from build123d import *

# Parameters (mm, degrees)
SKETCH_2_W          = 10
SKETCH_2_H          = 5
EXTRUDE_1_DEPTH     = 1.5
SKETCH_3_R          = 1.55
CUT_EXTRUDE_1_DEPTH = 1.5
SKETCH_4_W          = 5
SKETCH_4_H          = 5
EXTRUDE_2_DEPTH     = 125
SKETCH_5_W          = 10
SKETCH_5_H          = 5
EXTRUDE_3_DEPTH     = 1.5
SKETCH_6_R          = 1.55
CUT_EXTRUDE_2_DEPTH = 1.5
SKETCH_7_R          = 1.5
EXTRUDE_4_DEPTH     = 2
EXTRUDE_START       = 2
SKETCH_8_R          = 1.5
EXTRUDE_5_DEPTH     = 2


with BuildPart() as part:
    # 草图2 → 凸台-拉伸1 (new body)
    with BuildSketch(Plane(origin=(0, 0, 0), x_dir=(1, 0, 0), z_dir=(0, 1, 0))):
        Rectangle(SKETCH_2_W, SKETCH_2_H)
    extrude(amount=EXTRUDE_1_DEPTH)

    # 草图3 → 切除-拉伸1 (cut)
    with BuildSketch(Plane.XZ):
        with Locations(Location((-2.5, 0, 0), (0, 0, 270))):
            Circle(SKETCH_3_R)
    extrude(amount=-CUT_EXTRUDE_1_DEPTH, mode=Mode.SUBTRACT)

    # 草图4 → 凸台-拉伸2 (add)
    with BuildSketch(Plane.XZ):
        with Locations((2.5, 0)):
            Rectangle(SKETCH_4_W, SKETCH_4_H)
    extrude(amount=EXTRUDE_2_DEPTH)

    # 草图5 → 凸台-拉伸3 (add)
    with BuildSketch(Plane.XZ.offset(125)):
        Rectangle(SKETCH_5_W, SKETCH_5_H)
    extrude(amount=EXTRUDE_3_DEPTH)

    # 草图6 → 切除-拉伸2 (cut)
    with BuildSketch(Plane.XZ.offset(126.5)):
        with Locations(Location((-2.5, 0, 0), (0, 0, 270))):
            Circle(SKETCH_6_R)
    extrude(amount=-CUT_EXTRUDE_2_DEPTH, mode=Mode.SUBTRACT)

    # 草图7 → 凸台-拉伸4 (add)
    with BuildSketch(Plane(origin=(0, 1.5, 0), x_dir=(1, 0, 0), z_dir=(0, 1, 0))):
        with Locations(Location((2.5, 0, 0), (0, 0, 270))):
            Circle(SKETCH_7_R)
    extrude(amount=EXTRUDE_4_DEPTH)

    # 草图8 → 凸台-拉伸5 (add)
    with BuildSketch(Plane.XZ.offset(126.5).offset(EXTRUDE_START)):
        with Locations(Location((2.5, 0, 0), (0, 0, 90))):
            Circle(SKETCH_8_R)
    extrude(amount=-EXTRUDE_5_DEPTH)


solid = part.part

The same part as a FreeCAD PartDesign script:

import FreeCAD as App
import Part
import Sketcher
from FreeCAD import Vector


def add_polygon(sketch, points):
    """Adds a closed chain of lines whose ends are joined by coincident constraints."""
    first, n = sketch.GeometryCount, len(points)
    for a, b in zip(points, points[1:] + points[:1]):
        sketch.addGeometry(Part.LineSegment(App.Vector(*a, 0), App.Vector(*b, 0)), False)
    for i in range(n):
        sketch.addConstraint(Sketcher.Constraint("Coincident", first + i, 2, first + (i + 1) % n, 1))

doc = App.newDocument("Part")
params = doc.addObject("Spreadsheet::Sheet", "Params")
for row, (alias, value) in enumerate([
    ("sketch1_width", "10 mm"),
    ("sketch1_height", "5 mm"),
    ("pad1_length", "1.5 mm"),
    ("sketch2_diameter", "3.1 mm"),
    ("pocket1_length", "1.5 mm"),
    ("sketch3_width", "5 mm"),
    ("pad2_length", "125 mm"),
    ("sketch4_width", "10 mm"),
    ("sketch4_height", "5 mm"),
    ("pad3_length", "1.5 mm"),
    ("sketch5_diameter", "3.1 mm"),
    ("pocket2_length", "1.5 mm"),
    ("sketch6_diameter", "3 mm"),
    ("pad4_length", "2 mm"),
    ("sketch7_diameter", "3 mm"),
    ("pad5_length", "2 mm"),
], start=1):
    params.set(f"A{row}", alias)
    params.set(f"B{row}", "=" + value)
    params.setAlias(f"B{row}", alias)

body = doc.addObject("PartDesign::Body", "Body")

sketch1 = body.newObject("Sketcher::SketchObject", "Sketch")
sketch1.AttachmentSupport = (doc.getObject("XZ_Plane"), [""])
sketch1.MapMode = "FlatFace"
add_polygon(sketch1, [(-5, -2.5), (-5, 2.5), (5, 2.5), (5, -2.5)])
sketch1.addConstraint(Sketcher.Constraint("Vertical", 0))
sketch1.addConstraint(Sketcher.Constraint("Horizontal", 1))
sketch1.addConstraint(Sketcher.Constraint("Vertical", 2))
sketch1.addConstraint(Sketcher.Constraint("Horizontal", 3))
sketch1.addConstraint(Sketcher.Constraint("Symmetric", 0, 2, 2, 2, -1, 1))
sketch1.addConstraint(Sketcher.Constraint("DistanceX", 1, 1, 1, 2, 10.0))
sketch1.addConstraint(Sketcher.Constraint("DistanceY", 0, 1, 0, 2, 5.0))
sketch1.setExpression("Constraints[9]", "Params.sketch1_width")
sketch1.setExpression("Constraints[10]", "Params.sketch1_height")
pad1 = body.newObject("PartDesign::Pad", "Pad")
pad1.Profile = sketch1
pad1.setExpression("Length", "Params.pad1_length")
pad1.Reversed = True

sketch2 = body.newObject("Sketcher::SketchObject", "Sketch001")
sketch2.AttachmentSupport = (doc.getObject("XZ_Plane"), [""])
sketch2.MapMode = "FlatFace"
sketch2.addGeometry(Part.Circle(Vector(-2.5, 0, 0), Vector(0, 0, 1), 1.55), False)
sketch2.addConstraint(Sketcher.Constraint("PointOnObject", 0, 3, -1))
sketch2.addConstraint(Sketcher.Constraint("Diameter", 0, 3.1))
sketch2.addConstraint(Sketcher.Constraint("DistanceX", 0, 3, -1, 1, 2.5))
sketch2.setExpression("Constraints[1]", "Params.sketch2_diameter")
pocket1 = body.newObject("PartDesign::Pocket", "Pocket")
pocket1.Profile = sketch2
pocket1.setExpression("Length", "Params.pocket1_length")

sketch3 = body.newObject("Sketcher::SketchObject", "Sketch002")
sketch3.AttachmentSupport = (doc.getObject("XZ_Plane"), [""])
sketch3.MapMode = "FlatFace"
add_polygon(sketch3, [(0, 2.5), (0, -2.5), (5, -2.5), (5, 2.5)])
sketch3.addConstraint(Sketcher.Constraint("Vertical", 0))
sketch3.addConstraint(Sketcher.Constraint("Horizontal", 1))
sketch3.addConstraint(Sketcher.Constraint("Vertical", 2))
sketch3.addConstraint(Sketcher.Constraint("Horizontal", 3))
sketch3.addConstraint(Sketcher.Constraint("Symmetric", 0, 2, 3, 2, -1, 1))
sketch3.addConstraint(Sketcher.Constraint("Equal", 3, 0))
sketch3.addConstraint(Sketcher.Constraint("DistanceX", 1, 1, 1, 2, 5.0))
sketch3.setExpression("Constraints[10]", "Params.sketch3_width")
pad2 = body.newObject("PartDesign::Pad", "Pad001")
pad2.Profile = sketch3
pad2.setExpression("Length", "Params.pad2_length")

sketch4 = body.newObject("Sketcher::SketchObject", "Sketch003")
sketch4.AttachmentSupport = (doc.getObject("XZ_Plane"), [""])
sketch4.MapMode = "FlatFace"
sketch4.AttachmentOffset = App.Placement(Vector(0, 0, 125), App.Rotation())
add_polygon(sketch4, [(-5, 2.5), (-5, -2.5), (5, -2.5), (5, 2.5)])
sketch4.addConstraint(Sketcher.Constraint("Vertical", 0))
sketch4.addConstraint(Sketcher.Constraint("Horizontal", 1))
sketch4.addConstraint(Sketcher.Constraint("Vertical", 2))
sketch4.addConstraint(Sketcher.Constraint("Horizontal", 3))
sketch4.addConstraint(Sketcher.Constraint("Symmetric", 0, 2, 2, 2, -1, 1))
sketch4.addConstraint(Sketcher.Constraint("DistanceX", 1, 1, 1, 2, 10.0))
sketch4.addConstraint(Sketcher.Constraint("DistanceY", 0, 2, 0, 1, 5.0))
sketch4.setExpression("Constraints[9]", "Params.sketch4_width")
sketch4.setExpression("Constraints[10]", "Params.sketch4_height")
pad3 = body.newObject("PartDesign::Pad", "Pad002")
pad3.Profile = sketch4
pad3.setExpression("Length", "Params.pad3_length")

sketch5 = body.newObject("Sketcher::SketchObject", "Sketch004")
sketch5.AttachmentSupport = (doc.getObject("XZ_Plane"), [""])
sketch5.MapMode = "FlatFace"
sketch5.AttachmentOffset = App.Placement(Vector(0, 0, 126.5), App.Rotation())
sketch5.addGeometry(Part.Circle(Vector(-2.5, 0, 0), Vector(0, 0, 1), 1.55), False)
sketch5.addConstraint(Sketcher.Constraint("PointOnObject", 0, 3, -1))
sketch5.addConstraint(Sketcher.Constraint("Diameter", 0, 3.1))
sketch5.addConstraint(Sketcher.Constraint("DistanceX", 0, 3, -1, 1, 2.5))
sketch5.setExpression("Constraints[1]", "Params.sketch5_diameter")
pocket2 = body.newObject("PartDesign::Pocket", "Pocket001")
pocket2.Profile = sketch5
pocket2.setExpression("Length", "Params.pocket2_length")

sketch6 = body.newObject("Sketcher::SketchObject", "Sketch005")
sketch6.AttachmentSupport = (doc.getObject("XZ_Plane"), [""])
sketch6.MapMode = "FlatFace"
sketch6.AttachmentOffset = App.Placement(Vector(0, 0, -1.5), App.Rotation())
sketch6.addGeometry(Part.Circle(Vector(2.5, 0, 0), Vector(0, 0, 1), 1.5), False)
sketch6.addConstraint(Sketcher.Constraint("PointOnObject", 0, 3, -1))
sketch6.addConstraint(Sketcher.Constraint("Diameter", 0, 3.0))
sketch6.addConstraint(Sketcher.Constraint("DistanceX", -1, 1, 0, 3, 2.5))
sketch6.setExpression("Constraints[1]", "Params.sketch6_diameter")
pad4 = body.newObject("PartDesign::Pad", "Pad003")
pad4.Profile = sketch6
pad4.setExpression("Length", "Params.pad4_length")
pad4.Reversed = True

sketch7 = body.newObject("Sketcher::SketchObject", "Sketch006")
sketch7.AttachmentSupport = (doc.getObject("XZ_Plane"), [""])
sketch7.MapMode = "FlatFace"
sketch7.AttachmentOffset = App.Placement(Vector(0, 0, 128.5), App.Rotation())
sketch7.addGeometry(Part.Circle(Vector(2.5, 0, 0), Vector(0, 0, 1), 1.5), False)
sketch7.addConstraint(Sketcher.Constraint("PointOnObject", 0, 3, -1))
sketch7.addConstraint(Sketcher.Constraint("Diameter", 0, 3.0))
sketch7.addConstraint(Sketcher.Constraint("DistanceX", -1, 1, 0, 3, 2.5))
sketch7.setExpression("Constraints[1]", "Params.sketch7_diameter")
pad5 = body.newObject("PartDesign::Pad", "Pad004")
pad5.Profile = sketch7
pad5.setExpression("Length", "Params.pad5_length")
pad5.Reversed = True

doc.recompute()
